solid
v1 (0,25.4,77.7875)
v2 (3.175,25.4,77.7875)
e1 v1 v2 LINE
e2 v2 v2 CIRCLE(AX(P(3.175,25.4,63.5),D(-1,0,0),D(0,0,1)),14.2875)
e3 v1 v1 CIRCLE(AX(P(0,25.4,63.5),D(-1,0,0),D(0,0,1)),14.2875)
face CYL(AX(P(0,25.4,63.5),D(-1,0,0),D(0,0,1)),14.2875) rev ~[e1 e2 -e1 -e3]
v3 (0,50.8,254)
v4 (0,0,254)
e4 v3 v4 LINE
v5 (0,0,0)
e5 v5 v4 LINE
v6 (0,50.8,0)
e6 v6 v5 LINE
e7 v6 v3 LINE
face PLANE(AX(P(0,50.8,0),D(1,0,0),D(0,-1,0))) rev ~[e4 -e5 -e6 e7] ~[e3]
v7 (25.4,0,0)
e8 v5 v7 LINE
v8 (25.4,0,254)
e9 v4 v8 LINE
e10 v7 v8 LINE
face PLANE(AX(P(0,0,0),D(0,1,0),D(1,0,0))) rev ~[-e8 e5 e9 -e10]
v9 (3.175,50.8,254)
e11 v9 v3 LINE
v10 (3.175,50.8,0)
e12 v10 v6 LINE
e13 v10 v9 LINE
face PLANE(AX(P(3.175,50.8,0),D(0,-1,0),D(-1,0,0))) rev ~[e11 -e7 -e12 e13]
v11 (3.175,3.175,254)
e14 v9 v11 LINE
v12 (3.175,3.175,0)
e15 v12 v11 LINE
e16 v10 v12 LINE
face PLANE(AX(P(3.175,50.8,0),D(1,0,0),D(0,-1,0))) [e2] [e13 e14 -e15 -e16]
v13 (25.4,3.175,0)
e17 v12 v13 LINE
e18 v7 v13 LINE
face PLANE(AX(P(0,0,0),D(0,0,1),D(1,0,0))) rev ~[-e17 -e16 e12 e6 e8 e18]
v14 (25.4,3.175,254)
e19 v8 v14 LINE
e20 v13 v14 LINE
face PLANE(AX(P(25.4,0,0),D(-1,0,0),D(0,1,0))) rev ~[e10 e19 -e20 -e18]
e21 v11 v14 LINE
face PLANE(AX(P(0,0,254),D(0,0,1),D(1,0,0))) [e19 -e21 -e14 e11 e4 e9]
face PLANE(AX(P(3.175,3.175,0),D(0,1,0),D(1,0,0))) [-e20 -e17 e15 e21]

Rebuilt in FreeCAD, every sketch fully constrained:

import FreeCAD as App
import Part
import Sketcher

V = App.Vector
Q = App.Units.Quantity

doc = App.newDocument("Part")
body = doc.addObject("PartDesign::Body", "Body")

# Sketch on XY plane
sketch1 = body.newObject("Sketcher::SketchObject", "Sketch")
sketch1.AttachmentSupport = (doc.getObject("XY_Plane"), [""])
sketch1.MapMode = "FlatFace"
sketch1.addGeometry([
    Part.LineSegment(V(0, 50.8, 0), V(0, 0, 0)),  # 0
    Part.LineSegment(V(0, 0, 0), V(25.4, 0, 0)),  # 1
    Part.LineSegment(V(25.4, 0, 0), V(25.4, 3.2, 0)),  # 2
    Part.LineSegment(V(25.4, 3.2, 0), V(3.2, 3.2, 0)),  # 3
    Part.LineSegment(V(3.2, 3.2, 0), V(3.2, 50.8, 0)),  # 4
    Part.LineSegment(V(3.2, 50.8, 0), V(0, 50.8, 0)),  # 5
], False)
sketch1.addConstraint([
    Sketcher.Constraint("Coincident", 0, 2, 1, 1),
    Sketcher.Constraint("Coincident", 1, 2, 2, 1),
    Sketcher.Constraint("Coincident", 2, 2, 3, 1),
    Sketcher.Constraint("Coincident", 3, 2, 4, 1),
    Sketcher.Constraint("Coincident", 4, 2, 5, 1),
    Sketcher.Constraint("Coincident", 5, 2, 0, 1),
    Sketcher.Constraint("Vertical", 0),
    Sketcher.Constraint("Horizontal", 1),
    Sketcher.Constraint("Vertical", 2),
    Sketcher.Constraint("Horizontal", 3),
    Sketcher.Constraint("Vertical", 4),
    Sketcher.Constraint("Horizontal", 5),
    Sketcher.Constraint("Coincident", 0, 2, -1, 1),
    Sketcher.Constraint("Equal", 5, 2),
    Sketcher.Constraint("DistanceX", 1, 1, 1, 2, Q("1 in")),
    Sketcher.Constraint("DistanceY", 0, 2, 0, 1, Q("2 in")),
    Sketcher.Constraint("DistanceX", 5, 2, 5, 1, Q("0.125 in")),
])
pad1 = body.newObject("PartDesign::Pad", "Pad")
pad1.Profile = sketch1
pad1.Length = Q("10 in")

# Sketch on YZ plane
sketch2 = body.newObject("Sketcher::SketchObject", "Sketch001")
sketch2.AttachmentSupport = (doc.getObject("YZ_Plane"), [""])
sketch2.MapMode = "FlatFace"
sketch2.addGeometry(Part.Circle(V(25, 64, 0), V(0, 0, 1), 14), False)
sketch2.addConstraint([
    Sketcher.Constraint("Diameter", 0, Q("1.125 in")),
    Sketcher.Constraint("DistanceX", -1, 1, 0, 3, Q("1 in")),
    Sketcher.Constraint("DistanceY", -1, 1, 0, 3, Q("2.5 in")),
])
pocket1 = body.newObject("PartDesign::Pocket", "Pocket")
pocket1.Profile = sketch2
pocket1.Type = "ThroughAll"
pocket1.Reversed = True

doc.recompute()
